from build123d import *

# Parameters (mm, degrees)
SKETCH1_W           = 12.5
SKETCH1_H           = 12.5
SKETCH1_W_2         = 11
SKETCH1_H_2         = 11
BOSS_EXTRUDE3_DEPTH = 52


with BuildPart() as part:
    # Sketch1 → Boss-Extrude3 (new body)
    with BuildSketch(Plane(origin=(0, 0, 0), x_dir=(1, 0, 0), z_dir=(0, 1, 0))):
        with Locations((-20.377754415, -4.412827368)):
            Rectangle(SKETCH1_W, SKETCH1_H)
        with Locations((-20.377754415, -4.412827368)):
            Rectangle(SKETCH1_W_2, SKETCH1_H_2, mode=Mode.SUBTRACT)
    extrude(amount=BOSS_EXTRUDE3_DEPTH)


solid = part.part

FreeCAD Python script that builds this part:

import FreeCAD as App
import Part
import Sketcher
from FreeCAD import Vector
Q = App.Units.Quantity


def add_polygon(sketch, points):
    """Adds a closed chain of lines whose ends are joined by coincident constraints."""
    first, n = sketch.GeometryCount, len(points)
    for a, b in zip(points, points[1:] + points[:1]):
        sketch.addGeometry(Part.LineSegment(App.Vector(*a, 0), App.Vector(*b, 0)), False)
    for i in range(n):
        sketch.addConstraint(Sketcher.Constraint("Coincident", first + i, 2, first + (i + 1) % n, 1))

doc = App.newDocument("Part")
body = doc.addObject("PartDesign::Body", "Body")

# Sketch on XZ plane
sketch1 = body.newObject("Sketcher::SketchObject", "Sketch")
sketch1.AttachmentSupport = (doc.getObject("XZ_Plane"), [""])
sketch1.MapMode = "FlatFace"
add_polygon(sketch1, [(-26.627754, -1.837173), (-26.627754, 10.662827), (-14.127754, 10.662827), (-14.127754, -1.837173)])  # lines 0-3
add_polygon(sketch1, [(-14.877754, 9.912827), (-25.877754, 9.912827), (-25.877754, -1.087173), (-14.877754, -1.087173)])  # lines 4-7
sketch1.addConstraint([
    Sketcher.Constraint("Vertical", 0),
    Sketcher.Constraint("Horizontal", 1),
    Sketcher.Constraint("Vertical", 2),
    Sketcher.Constraint("Horizontal", 3),
    Sketcher.Constraint("Horizontal", 4),
    Sketcher.Constraint("Vertical", 5),
    Sketcher.Constraint("Horizontal", 6),
    Sketcher.Constraint("Vertical", 7),
    Sketcher.Constraint("Equal", 3, 0),
    Sketcher.Constraint("Equal", 6, 5),
    Sketcher.Constraint("DistanceX", 4, 2, 4, 1, Q("11 mm")),
    Sketcher.Constraint("DistanceX", 1, 1, 1, 2, Q("12.5 mm")),
    Sketcher.Constraint("DistanceX", 0, 2, 4, 2, Q("0.75 mm")),
    Sketcher.Constraint("DistanceY", 4, 2, 0, 2, Q("0.75 mm")),
    Sketcher.Constraint("DistanceX", 0, 2, -1, 1, Q("26.627754 mm")),
    Sketcher.Constraint("DistanceY", -1, 1, 0, 2, Q("10.662827 mm")),
])
pad1 = body.newObject("PartDesign::Pad", "Pad")
pad1.Profile = sketch1
pad1.Length = 52
pad1.Reversed = True

doc.recompute()
